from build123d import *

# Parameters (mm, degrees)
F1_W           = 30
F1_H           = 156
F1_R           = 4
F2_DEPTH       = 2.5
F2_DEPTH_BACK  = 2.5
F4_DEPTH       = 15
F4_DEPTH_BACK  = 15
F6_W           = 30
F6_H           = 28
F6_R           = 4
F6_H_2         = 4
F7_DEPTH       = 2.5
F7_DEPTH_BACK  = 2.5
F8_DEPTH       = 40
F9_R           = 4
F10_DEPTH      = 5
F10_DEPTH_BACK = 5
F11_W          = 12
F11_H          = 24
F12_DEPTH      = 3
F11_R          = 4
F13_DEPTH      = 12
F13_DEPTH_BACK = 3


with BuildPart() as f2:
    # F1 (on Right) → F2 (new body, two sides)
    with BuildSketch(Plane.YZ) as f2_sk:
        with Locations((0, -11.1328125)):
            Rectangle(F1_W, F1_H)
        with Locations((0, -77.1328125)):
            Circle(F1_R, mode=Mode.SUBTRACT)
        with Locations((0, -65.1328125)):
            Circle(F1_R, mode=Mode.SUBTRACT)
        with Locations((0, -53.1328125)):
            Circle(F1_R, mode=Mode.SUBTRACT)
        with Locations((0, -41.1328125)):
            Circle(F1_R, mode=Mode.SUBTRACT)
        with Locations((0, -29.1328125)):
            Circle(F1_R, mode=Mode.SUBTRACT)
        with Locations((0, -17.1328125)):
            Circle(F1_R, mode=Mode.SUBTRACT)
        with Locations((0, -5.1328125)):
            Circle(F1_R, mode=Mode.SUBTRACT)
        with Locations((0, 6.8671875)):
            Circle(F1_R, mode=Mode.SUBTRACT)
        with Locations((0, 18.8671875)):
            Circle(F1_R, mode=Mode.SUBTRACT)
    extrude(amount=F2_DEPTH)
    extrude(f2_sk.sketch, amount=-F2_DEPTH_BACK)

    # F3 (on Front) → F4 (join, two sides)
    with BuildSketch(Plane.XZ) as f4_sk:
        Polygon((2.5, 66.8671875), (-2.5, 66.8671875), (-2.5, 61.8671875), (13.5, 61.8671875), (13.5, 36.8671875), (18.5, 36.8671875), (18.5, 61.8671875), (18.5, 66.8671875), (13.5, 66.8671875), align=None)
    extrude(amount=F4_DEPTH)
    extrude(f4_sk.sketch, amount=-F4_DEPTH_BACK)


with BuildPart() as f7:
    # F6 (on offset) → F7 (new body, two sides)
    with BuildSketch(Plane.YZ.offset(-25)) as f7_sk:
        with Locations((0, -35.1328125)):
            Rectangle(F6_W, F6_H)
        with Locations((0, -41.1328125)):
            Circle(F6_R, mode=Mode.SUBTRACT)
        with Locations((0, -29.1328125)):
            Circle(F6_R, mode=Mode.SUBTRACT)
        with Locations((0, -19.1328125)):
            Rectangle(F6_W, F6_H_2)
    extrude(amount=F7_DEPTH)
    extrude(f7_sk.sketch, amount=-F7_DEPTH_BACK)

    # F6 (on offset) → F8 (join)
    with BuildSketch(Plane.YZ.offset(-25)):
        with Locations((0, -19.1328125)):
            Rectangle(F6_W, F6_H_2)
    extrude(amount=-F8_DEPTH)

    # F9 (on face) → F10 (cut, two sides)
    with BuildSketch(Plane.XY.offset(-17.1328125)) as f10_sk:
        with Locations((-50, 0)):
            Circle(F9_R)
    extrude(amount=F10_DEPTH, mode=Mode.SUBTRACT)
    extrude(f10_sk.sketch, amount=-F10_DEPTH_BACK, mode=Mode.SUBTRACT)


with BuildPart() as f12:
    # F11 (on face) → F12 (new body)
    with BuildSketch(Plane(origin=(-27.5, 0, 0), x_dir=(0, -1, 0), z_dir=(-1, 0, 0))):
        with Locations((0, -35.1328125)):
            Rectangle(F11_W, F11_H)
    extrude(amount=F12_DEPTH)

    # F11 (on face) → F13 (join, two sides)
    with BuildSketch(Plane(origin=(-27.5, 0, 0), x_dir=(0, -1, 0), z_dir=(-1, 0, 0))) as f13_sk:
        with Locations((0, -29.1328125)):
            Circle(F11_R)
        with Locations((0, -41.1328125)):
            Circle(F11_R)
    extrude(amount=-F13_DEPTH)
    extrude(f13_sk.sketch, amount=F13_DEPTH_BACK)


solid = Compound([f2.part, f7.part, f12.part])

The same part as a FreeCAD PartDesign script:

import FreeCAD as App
import Part
import Sketcher

V = App.Vector


def add_polygon(sketch, points):
    """Adds a closed chain of lines whose ends are joined by coincident constraints."""
    first, n = sketch.GeometryCount, len(points)
    for a, b in zip(points, points[1:] + points[:1]):
        sketch.addGeometry(Part.LineSegment(App.Vector(*a, 0), App.Vector(*b, 0)), False)
    for i in range(n):
        sketch.addConstraint(Sketcher.Constraint("Coincident", first + i, 2, first + (i + 1) % n, 1))

doc = App.newDocument("Part")
body = doc.addObject("PartDesign::Body", "Body")

# Sketch on YZ plane
sketch1 = body.newObject("Sketcher::SketchObject", "Sketch")
sketch1.AttachmentSupport = (doc.getObject("YZ_Plane"), [""])
sketch1.MapMode = "FlatFace"
add_polygon(sketch1, [(-15, 66.9), (-15, -89.1), (15, -89.1), (15, 66.9)])  # lines 0-3
sketch1.addGeometry(Part.Circle(V(0, -77.1, 0), V(0, 0, 1), 4), False)  # 4
sketch1.addGeometry(Part.Circle(V(0, -65.1, 0), V(0, 0, 1), 4), False)  # 5
sketch1.addGeometry(Part.Circle(V(0, -53.1, 0), V(0, 0, 1), 4), False)  # 6
sketch1.addGeometry(Part.Circle(V(0, -41.1, 0), V(0, 0, 1), 4), False)  # 7
sketch1.addGeometry(Part.Circle(V(0, -29.1, 0), V(0, 0, 1), 4), False)  # 8
sketch1.addGeometry(Part.Circle(V(0, -17.1, 0), V(0, 0, 1), 4), False)  # 9
sketch1.addGeometry(Part.Circle(V(0, -5.1, 0), V(0, 0, 1), 4), False)  # 10
sketch1.addGeometry(Part.Circle(V(0, 6.9, 0), V(0, 0, 1), 4), False)  # 11
sketch1.addGeometry(Part.Circle(V(0, 18.9, 0), V(0, 0, 1), 4), False)  # 12
sketch1.addConstraint(Sketcher.Constraint("Vertical", 0))
sketch1.addConstraint(Sketcher.Constraint("Horizontal", 1))
sketch1.addConstraint(Sketcher.Constraint("Vertical", 2))
sketch1.addConstraint(Sketcher.Constraint("Horizontal", 3))
sketch1.addConstraint(Sketcher.Constraint("Equal", 4, 5))
sketch1.addConstraint(Sketcher.Constraint("Equal", 5, 6))
sketch1.addConstraint(Sketcher.Constraint("Equal", 6, 7))
sketch1.addConstraint(Sketcher.Constraint("Equal", 7, 8))
sketch1.addConstraint(Sketcher.Constraint("Equal", 8, 9))
sketch1.addConstraint(Sketcher.Constraint("Equal", 9, 10))
sketch1.addConstraint(Sketcher.Constraint("Equal", 10, 11))
sketch1.addConstraint(Sketcher.Constraint("Equal", 11, 12))
sketch1.addConstraint(Sketcher.Constraint("PointOnObject", 4, 3, -2))
sketch1.addConstraint(Sketcher.Constraint("PointOnObject", 5, 3, -2))
sketch1.addConstraint(Sketcher.Constraint("PointOnObject", 6, 3, -2))
sketch1.addConstraint(Sketcher.Constraint("PointOnObject", 7, 3, -2))
sketch1.addConstraint(Sketcher.Constraint("PointOnObject", 8, 3, -2))
sketch1.addConstraint(Sketcher.Constraint("PointOnObject", 9, 3, -2))
sketch1.addConstraint(Sketcher.Constraint("PointOnObject", 10, 3, -2))
sketch1.addConstraint(Sketcher.Constraint("PointOnObject", 11, 3, -2))
sketch1.addConstraint(Sketcher.Constraint("PointOnObject", 12, 3, -2))
sketch1.addConstraint(Sketcher.Constraint("Diameter", 4, 8.0))
sketch1.addConstraint(Sketcher.Constraint("DistanceX", 1, 1, 1, 2, 30.0))
sketch1.addConstraint(Sketcher.Constraint("DistanceY", 0, 2, 0, 1, 156.0))
sketch1.addConstraint(Sketcher.Constraint("DistanceX", 0, 2, -1, 1, 15.0))
sketch1.addConstraint(Sketcher.Constraint("DistanceY", 4, 3, 5, 3, 12.0))
sketch1.addConstraint(Sketcher.Constraint("DistanceY", 5, 3, 6, 3, 12.0))
sketch1.addConstraint(Sketcher.Constraint("DistanceY", 6, 3, 7, 3, 12.0))
sketch1.addConstraint(Sketcher.Constraint("DistanceY", 7, 3, 8, 3, 12.0))
sketch1.addConstraint(Sketcher.Constraint("DistanceY", 8, 3, 9, 3, 12.0))
sketch1.addConstraint(Sketcher.Constraint("DistanceY", 9, 3, 10, 3, 12.0))
sketch1.addConstraint(Sketcher.Constraint("DistanceY", 10, 3, 11, 3, 12.0))
sketch1.addConstraint(Sketcher.Constraint("DistanceY", 11, 3, 12, 3, 12.0))
sketch1.addConstraint(Sketcher.Constraint("DistanceY", 0, 2, 4, 3, 12.0))
sketch1.addConstraint(Sketcher.Constraint("DistanceY", 4, 3, -1, 1, 77.132812))
pad1 = body.newObject("PartDesign::Pad", "Pad")
pad1.Profile = sketch1
pad1.Type = "TwoLengths"
pad1.Length = 2.5
pad1.Length2 = 2.5

# Sketch on XZ plane
sketch2 = body.newObject("Sketcher::SketchObject", "Sketch001")
sketch2.AttachmentSupport = (doc.getObject("XZ_Plane"), [""])
sketch2.MapMode = "FlatFace"
add_polygon(sketch2, [(-2, 67), (-2, 62), (14, 62), (14, 37), (18, 37), (18, 67)])  # lines 0-5
sketch2.addConstraint(Sketcher.Constraint("Vertical", 0))
sketch2.addConstraint(Sketcher.Constraint("Horizontal", 1))
sketch2.addConstraint(Sketcher.Constraint("Vertical", 2))
sketch2.addConstraint(Sketcher.Constraint("Horizontal", 3))
sketch2.addConstraint(Sketcher.Constraint("Vertical", 4))
sketch2.addConstraint(Sketcher.Constraint("Horizontal", 5))
sketch2.addConstraint(Sketcher.Constraint("Equal", 3, 0))
sketch2.addConstraint(Sketcher.Constraint("DistanceX", 1, 1, 1, 2, 16.0))
sketch2.addConstraint(Sketcher.Constraint("DistanceX", 3, 1, 3, 2, 5.0))
sketch2.addConstraint(Sketcher.Constraint("DistanceY", 2, 2, 2, 1, 25.0))
sketch2.addConstraint(Sketcher.Constraint("DistanceX", 0, 2, -1, 1, 2.5))
sketch2.addConstraint(Sketcher.Constraint("DistanceY", -1, 1, 0, 2, 61.867188))
pad2 = body.newObject("PartDesign::Pad", "Pad001")
pad2.Profile = sketch2
pad2.Type = "TwoLengths"
pad2.Length = 15
pad2.Length2 = 15
body2 = doc.addObject("PartDesign::Body", "Body001")

# Sketch on YZ plane
sketch3 = body2.newObject("Sketcher::SketchObject", "Sketch002")
sketch3.AttachmentSupport = (doc.getObject("YZ_Plane001"), [""])
sketch3.MapMode = "FlatFace"
sketch3.AttachmentOffset = App.Placement(V(0, 0, -25), App.Rotation())
add_polygon(sketch3, [(-15, -49.1), (15, -49.1), (15, -17.1), (-15, -17.1)])  # lines 0-3
sketch3.addGeometry(Part.Circle(V(0, -41.1, 0), V(0, 0, 1), 4), False)  # 4
sketch3.addGeometry(Part.Circle(V(0, -29.1, 0), V(0, 0, 1), 4), False)  # 5
sketch3.addConstraint(Sketcher.Constraint("Horizontal", 0))
sketch3.addConstraint(Sketcher.Constraint("Vertical", 1))
sketch3.addConstraint(Sketcher.Constraint("Horizontal", 2))
sketch3.addConstraint(Sketcher.Constraint("Vertical", 3))
sketch3.addConstraint(Sketcher.Constraint("Equal", 4, 5))
sketch3.addConstraint(Sketcher.Constraint("PointOnObject", 4, 3, -2))
sketch3.addConstraint(Sketcher.Constraint("PointOnObject", 5, 3, -2))
sketch3.addConstraint(Sketcher.Constraint("Diameter", 4, 8.0))
sketch3.addConstraint(Sketcher.Constraint("DistanceX", 0, 1, 0, 2, 30.0))
sketch3.addConstraint(Sketcher.Constraint("DistanceY", 1, 1, 1, 2, 32.0))
sketch3.addConstraint(Sketcher.Constraint("DistanceX", -1, 1, 0, 2, 15.0))
sketch3.addConstraint(Sketcher.Constraint("DistanceY", 4, 3, 5, 3, 12.0))
sketch3.addConstraint(Sketcher.Constraint("DistanceY", 0, 2, 4, 3, 8.0))
sketch3.addConstraint(Sketcher.Constraint("DistanceY", 4, 3, -1, 1, 41.132812))
pad3 = body2.newObject("PartDesign::Pad", "Pad002")
pad3.Profile = sketch3
pad3.Type = "TwoLengths"
pad3.Length = 2.5
pad3.Length2 = 2.5

# Sketch on YZ plane
sketch4 = body2.newObject("Sketcher::SketchObject", "Sketch003")
sketch4.AttachmentSupport = (doc.getObject("YZ_Plane001"), [""])
sketch4.MapMode = "FlatFace"
sketch4.AttachmentOffset = App.Placement(V(0, 0, -25), App.Rotation())
add_polygon(sketch4, [(-15, -17.1), (-15, -21.1), (15, -21.1), (15, -17.1)])  # lines 0-3
sketch4.addConstraint(Sketcher.Constraint("Vertical", 0))
sketch4.addConstraint(Sketcher.Constraint("Horizontal", 1))
sketch4.addConstraint(Sketcher.Constraint("Vertical", 2))
sketch4.addConstraint(Sketcher.Constraint("Horizontal", 3))
sketch4.addConstraint(Sketcher.Constraint("DistanceX", 1, 1, 1, 2, 30.0))
sketch4.addConstraint(Sketcher.Constraint("DistanceY", 0, 2, 0, 1, 4.0))
sketch4.addConstraint(Sketcher.Constraint("DistanceX", 0, 2, -1, 1, 15.0))
sketch4.addConstraint(Sketcher.Constraint("DistanceY", 0, 2, -1, 1, 21.132812))
pad4 = body2.newObject("PartDesign::Pad", "Pad003")
pad4.Profile = sketch4
pad4.Length = 40
pad4.Reversed = True

# Sketch on XY plane
sketch5 = body2.newObject("Sketcher::SketchObject", "Sketch004")
sketch5.AttachmentSupport = (doc.getObject("XY_Plane001"), [""])
sketch5.MapMode = "FlatFace"
sketch5.AttachmentOffset = App.Placement(V(0, 0, -17.132812), App.Rotation())
sketch5.addGeometry(Part.Circle(V(-50, 0, 0), V(0, 0, 1), 4), False)
sketch5.addConstraint(Sketcher.Constraint("PointOnObject", 0, 3, -1))
sketch5.addConstraint(Sketcher.Constraint("Diameter", 0, 8.0))
sketch5.addConstraint(Sketcher.Constraint("DistanceX", 0, 3, -1, 1, 50.0))
pocket1 = body2.newObject("PartDesign::Pocket", "Pocket")
pocket1.Profile = sketch5
pocket1.Type = "ThroughAll"
pocket1.Midplane = True
body3 = doc.addObject("PartDesign::Body", "Body002")

# Sketch on YZ plane
sketch6 = body3.newObject("Sketcher::SketchObject", "Sketch005")
sketch6.AttachmentSupport = (doc.getObject("YZ_Plane002"), [""])
sketch6.MapMode = "FlatFace"
sketch6.AttachmentOffset = App.Placement(V(0, 0, -27.5), App.Rotation())
add_polygon(sketch6, [(6, -23), (6, -47), (-6, -47), (-6, -23)])  # lines 0-3
sketch6.addConstraint(Sketcher.Constraint("Vertical", 0))
sketch6.addConstraint(Sketcher.Constraint("Horizontal", 1))
sketch6.addConstraint(Sketcher.Constraint("Vertical", 2))
sketch6.addConstraint(Sketcher.Constraint("Horizontal", 3))
sketch6.addConstraint(Sketcher.Constraint("DistanceX", 1, 2, 1, 1, 12.0))
sketch6.addConstraint(Sketcher.Constraint("DistanceY", 0, 2, 0, 1, 24.0))
sketch6.addConstraint(Sketcher.Constraint("DistanceX", -1, 1, 0, 2, 6.0))
sketch6.addConstraint(Sketcher.Constraint("DistanceY", 0, 2, -1, 1, 47.132812))
pad5 = body3.newObject("PartDesign::Pad", "Pad004")
pad5.Profile = sketch6
pad5.Length = 3
pad5.Reversed = True

# Sketch on YZ plane
sketch7 = body3.newObject("Sketcher::SketchObject", "Sketch006")
sketch7.AttachmentSupport = (doc.getObject("YZ_Plane002"), [""])
sketch7.MapMode = "FlatFace"
sketch7.AttachmentOffset = App.Placement(V(0, 0, -27.5), App.Rotation())
sketch7.addGeometry(Part.Circle(V(0, -29.1, 0), V(0, 0, 1), 4), False)
sketch7.addGeometry(Part.Circle(V(0, -41.1, 0), V(0, 0, 1), 4), False)
sketch7.addConstraint(Sketcher.Constraint("Equal", 0, 1))
sketch7.addConstraint(Sketcher.Constraint("PointOnObject", 0, 3, -2))
sketch7.addConstraint(Sketcher.Constraint("PointOnObject", 1, 3, -2))
sketch7.addConstraint(Sketcher.Constraint("Diameter", 0, 8.0))
sketch7.addConstraint(Sketcher.Constraint("DistanceY", 1, 3, 0, 3, 12.0))
sketch7.addConstraint(Sketcher.Constraint("DistanceY", 0, 3, -1, 1, 29.132812))
pad6 = body3.newObject("PartDesign::Pad", "Pad005")
pad6.Profile = sketch7
pad6.Type = "TwoLengths"
pad6.Length = 12
pad6.Length2 = 3

doc.recompute()
